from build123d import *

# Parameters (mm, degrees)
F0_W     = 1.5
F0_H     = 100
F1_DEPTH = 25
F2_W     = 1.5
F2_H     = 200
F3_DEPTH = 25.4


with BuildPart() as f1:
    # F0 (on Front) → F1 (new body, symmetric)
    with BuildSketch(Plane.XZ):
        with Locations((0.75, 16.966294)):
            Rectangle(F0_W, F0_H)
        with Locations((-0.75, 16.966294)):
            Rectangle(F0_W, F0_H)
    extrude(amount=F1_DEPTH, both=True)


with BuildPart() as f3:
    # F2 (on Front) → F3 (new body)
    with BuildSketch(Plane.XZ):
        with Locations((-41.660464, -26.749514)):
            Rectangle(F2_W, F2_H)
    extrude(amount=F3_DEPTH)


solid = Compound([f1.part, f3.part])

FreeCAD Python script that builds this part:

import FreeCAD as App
import Part
import Sketcher

V = App.Vector
Q = App.Units.Quantity

doc = App.newDocument("Part")
body = doc.addObject("PartDesign::Body", "Body")

sketch1 = body.newObject("Sketcher::SketchObject", "Sketch")
sketch1.AttachmentSupport = (doc.getObject("XZ_Plane"), [""])
sketch1.MapMode = "FlatFace"
sketch1.addGeometry(Part.LineSegment(V(1.5, -33, 0), V(1.5, 67, 0)), False)
sketch1.addGeometry(Part.LineSegment(V(1.5, 67, 0), V(-1.5, 67, 0)), False)
sketch1.addGeometry(Part.LineSegment(V(-1.5, 67, 0), V(-1.5, -33, 0)), False)
sketch1.addGeometry(Part.LineSegment(V(-1.5, -33, 0), V(1.5, -33, 0)), False)
sketch1.addConstraint(Sketcher.Constraint("Coincident", 0, 2, 1, 1))
sketch1.addConstraint(Sketcher.Constraint("Coincident", 1, 2, 2, 1))
sketch1.addConstraint(Sketcher.Constraint("Coincident", 2, 2, 3, 1))
sketch1.addConstraint(Sketcher.Constraint("Coincident", 3, 2, 0, 1))
sketch1.addConstraint(Sketcher.Constraint("Vertical", 0))
sketch1.addConstraint(Sketcher.Constraint("Horizontal", 1))
sketch1.addConstraint(Sketcher.Constraint("Vertical", 2))
sketch1.addConstraint(Sketcher.Constraint("Horizontal", 3))
sketch1.addConstraint(Sketcher.Constraint("DistanceX", 1, 2, 1, 1, Q("3 mm")))
sketch1.addConstraint(Sketcher.Constraint("DistanceY", 0, 1, 0, 2, Q("100 mm")))
sketch1.addConstraint(Sketcher.Constraint("DistanceX", -1, 1, 0, 2, Q("1.5 mm")))
sketch1.addConstraint(Sketcher.Constraint("DistanceY", -1, 1, 0, 2, Q("66.966294 mm")))
pad1 = body.newObject("PartDesign::Pad", "Pad")
pad1.Profile = sketch1
pad1.Length = 50
pad1.Midplane = True
body2 = doc.addObject("PartDesign::Body", "Body001")

sketch2 = body2.newObject("Sketcher::SketchObject", "Sketch001")
sketch2.AttachmentSupport = (doc.getObject("XZ_Plane001"), [""])
sketch2.MapMode = "FlatFace"
sketch2.addGeometry(Part.LineSegment(V(-42.4, 73.3, 0), V(-42.4, -126.7, 0)), False)
sketch2.addGeometry(Part.LineSegment(V(-42.4, -126.7, 0), V(-40.9, -126.7, 0)), False)
sketch2.addGeometry(Part.LineSegment(V(-40.9, -126.7, 0), V(-40.9, 73.3, 0)), False)
sketch2.addGeometry(Part.LineSegment(V(-40.9, 73.3, 0), V(-42.4, 73.3, 0)), False)
sketch2.addConstraint(Sketcher.Constraint("Coincident", 0, 2, 1, 1))
sketch2.addConstraint(Sketcher.Constraint("Coincident", 1, 2, 2, 1))
sketch2.addConstraint(Sketcher.Constraint("Coincident", 2, 2, 3, 1))
sketch2.addConstraint(Sketcher.Constraint("Coincident", 3, 2, 0, 1))
sketch2.addConstraint(Sketcher.Constraint("Vertical", 0))
sketch2.addConstraint(Sketcher.Constraint("Horizontal", 1))
sketch2.addConstraint(Sketcher.Constraint("Vertical", 2))
sketch2.addConstraint(Sketcher.Constraint("Horizontal", 3))
sketch2.addConstraint(Sketcher.Constraint("DistanceY", 0, 2, 0, 1, Q("200 mm")))
sketch2.addConstraint(Sketcher.Constraint("DistanceX", 1, 1, 1, 2, Q("1.5 mm")))
sketch2.addConstraint(Sketcher.Constraint("DistanceX", 0, 2, -1, 1, Q("42.410464 mm")))
sketch2.addConstraint(Sketcher.Constraint("DistanceY", 0, 2, -1, 1, Q("126.749514 mm")))
pad2 = body2.newObject("PartDesign::Pad", "Pad001")
pad2.Profile = sketch2
pad2.Length = 25.4

doc.recompute()
